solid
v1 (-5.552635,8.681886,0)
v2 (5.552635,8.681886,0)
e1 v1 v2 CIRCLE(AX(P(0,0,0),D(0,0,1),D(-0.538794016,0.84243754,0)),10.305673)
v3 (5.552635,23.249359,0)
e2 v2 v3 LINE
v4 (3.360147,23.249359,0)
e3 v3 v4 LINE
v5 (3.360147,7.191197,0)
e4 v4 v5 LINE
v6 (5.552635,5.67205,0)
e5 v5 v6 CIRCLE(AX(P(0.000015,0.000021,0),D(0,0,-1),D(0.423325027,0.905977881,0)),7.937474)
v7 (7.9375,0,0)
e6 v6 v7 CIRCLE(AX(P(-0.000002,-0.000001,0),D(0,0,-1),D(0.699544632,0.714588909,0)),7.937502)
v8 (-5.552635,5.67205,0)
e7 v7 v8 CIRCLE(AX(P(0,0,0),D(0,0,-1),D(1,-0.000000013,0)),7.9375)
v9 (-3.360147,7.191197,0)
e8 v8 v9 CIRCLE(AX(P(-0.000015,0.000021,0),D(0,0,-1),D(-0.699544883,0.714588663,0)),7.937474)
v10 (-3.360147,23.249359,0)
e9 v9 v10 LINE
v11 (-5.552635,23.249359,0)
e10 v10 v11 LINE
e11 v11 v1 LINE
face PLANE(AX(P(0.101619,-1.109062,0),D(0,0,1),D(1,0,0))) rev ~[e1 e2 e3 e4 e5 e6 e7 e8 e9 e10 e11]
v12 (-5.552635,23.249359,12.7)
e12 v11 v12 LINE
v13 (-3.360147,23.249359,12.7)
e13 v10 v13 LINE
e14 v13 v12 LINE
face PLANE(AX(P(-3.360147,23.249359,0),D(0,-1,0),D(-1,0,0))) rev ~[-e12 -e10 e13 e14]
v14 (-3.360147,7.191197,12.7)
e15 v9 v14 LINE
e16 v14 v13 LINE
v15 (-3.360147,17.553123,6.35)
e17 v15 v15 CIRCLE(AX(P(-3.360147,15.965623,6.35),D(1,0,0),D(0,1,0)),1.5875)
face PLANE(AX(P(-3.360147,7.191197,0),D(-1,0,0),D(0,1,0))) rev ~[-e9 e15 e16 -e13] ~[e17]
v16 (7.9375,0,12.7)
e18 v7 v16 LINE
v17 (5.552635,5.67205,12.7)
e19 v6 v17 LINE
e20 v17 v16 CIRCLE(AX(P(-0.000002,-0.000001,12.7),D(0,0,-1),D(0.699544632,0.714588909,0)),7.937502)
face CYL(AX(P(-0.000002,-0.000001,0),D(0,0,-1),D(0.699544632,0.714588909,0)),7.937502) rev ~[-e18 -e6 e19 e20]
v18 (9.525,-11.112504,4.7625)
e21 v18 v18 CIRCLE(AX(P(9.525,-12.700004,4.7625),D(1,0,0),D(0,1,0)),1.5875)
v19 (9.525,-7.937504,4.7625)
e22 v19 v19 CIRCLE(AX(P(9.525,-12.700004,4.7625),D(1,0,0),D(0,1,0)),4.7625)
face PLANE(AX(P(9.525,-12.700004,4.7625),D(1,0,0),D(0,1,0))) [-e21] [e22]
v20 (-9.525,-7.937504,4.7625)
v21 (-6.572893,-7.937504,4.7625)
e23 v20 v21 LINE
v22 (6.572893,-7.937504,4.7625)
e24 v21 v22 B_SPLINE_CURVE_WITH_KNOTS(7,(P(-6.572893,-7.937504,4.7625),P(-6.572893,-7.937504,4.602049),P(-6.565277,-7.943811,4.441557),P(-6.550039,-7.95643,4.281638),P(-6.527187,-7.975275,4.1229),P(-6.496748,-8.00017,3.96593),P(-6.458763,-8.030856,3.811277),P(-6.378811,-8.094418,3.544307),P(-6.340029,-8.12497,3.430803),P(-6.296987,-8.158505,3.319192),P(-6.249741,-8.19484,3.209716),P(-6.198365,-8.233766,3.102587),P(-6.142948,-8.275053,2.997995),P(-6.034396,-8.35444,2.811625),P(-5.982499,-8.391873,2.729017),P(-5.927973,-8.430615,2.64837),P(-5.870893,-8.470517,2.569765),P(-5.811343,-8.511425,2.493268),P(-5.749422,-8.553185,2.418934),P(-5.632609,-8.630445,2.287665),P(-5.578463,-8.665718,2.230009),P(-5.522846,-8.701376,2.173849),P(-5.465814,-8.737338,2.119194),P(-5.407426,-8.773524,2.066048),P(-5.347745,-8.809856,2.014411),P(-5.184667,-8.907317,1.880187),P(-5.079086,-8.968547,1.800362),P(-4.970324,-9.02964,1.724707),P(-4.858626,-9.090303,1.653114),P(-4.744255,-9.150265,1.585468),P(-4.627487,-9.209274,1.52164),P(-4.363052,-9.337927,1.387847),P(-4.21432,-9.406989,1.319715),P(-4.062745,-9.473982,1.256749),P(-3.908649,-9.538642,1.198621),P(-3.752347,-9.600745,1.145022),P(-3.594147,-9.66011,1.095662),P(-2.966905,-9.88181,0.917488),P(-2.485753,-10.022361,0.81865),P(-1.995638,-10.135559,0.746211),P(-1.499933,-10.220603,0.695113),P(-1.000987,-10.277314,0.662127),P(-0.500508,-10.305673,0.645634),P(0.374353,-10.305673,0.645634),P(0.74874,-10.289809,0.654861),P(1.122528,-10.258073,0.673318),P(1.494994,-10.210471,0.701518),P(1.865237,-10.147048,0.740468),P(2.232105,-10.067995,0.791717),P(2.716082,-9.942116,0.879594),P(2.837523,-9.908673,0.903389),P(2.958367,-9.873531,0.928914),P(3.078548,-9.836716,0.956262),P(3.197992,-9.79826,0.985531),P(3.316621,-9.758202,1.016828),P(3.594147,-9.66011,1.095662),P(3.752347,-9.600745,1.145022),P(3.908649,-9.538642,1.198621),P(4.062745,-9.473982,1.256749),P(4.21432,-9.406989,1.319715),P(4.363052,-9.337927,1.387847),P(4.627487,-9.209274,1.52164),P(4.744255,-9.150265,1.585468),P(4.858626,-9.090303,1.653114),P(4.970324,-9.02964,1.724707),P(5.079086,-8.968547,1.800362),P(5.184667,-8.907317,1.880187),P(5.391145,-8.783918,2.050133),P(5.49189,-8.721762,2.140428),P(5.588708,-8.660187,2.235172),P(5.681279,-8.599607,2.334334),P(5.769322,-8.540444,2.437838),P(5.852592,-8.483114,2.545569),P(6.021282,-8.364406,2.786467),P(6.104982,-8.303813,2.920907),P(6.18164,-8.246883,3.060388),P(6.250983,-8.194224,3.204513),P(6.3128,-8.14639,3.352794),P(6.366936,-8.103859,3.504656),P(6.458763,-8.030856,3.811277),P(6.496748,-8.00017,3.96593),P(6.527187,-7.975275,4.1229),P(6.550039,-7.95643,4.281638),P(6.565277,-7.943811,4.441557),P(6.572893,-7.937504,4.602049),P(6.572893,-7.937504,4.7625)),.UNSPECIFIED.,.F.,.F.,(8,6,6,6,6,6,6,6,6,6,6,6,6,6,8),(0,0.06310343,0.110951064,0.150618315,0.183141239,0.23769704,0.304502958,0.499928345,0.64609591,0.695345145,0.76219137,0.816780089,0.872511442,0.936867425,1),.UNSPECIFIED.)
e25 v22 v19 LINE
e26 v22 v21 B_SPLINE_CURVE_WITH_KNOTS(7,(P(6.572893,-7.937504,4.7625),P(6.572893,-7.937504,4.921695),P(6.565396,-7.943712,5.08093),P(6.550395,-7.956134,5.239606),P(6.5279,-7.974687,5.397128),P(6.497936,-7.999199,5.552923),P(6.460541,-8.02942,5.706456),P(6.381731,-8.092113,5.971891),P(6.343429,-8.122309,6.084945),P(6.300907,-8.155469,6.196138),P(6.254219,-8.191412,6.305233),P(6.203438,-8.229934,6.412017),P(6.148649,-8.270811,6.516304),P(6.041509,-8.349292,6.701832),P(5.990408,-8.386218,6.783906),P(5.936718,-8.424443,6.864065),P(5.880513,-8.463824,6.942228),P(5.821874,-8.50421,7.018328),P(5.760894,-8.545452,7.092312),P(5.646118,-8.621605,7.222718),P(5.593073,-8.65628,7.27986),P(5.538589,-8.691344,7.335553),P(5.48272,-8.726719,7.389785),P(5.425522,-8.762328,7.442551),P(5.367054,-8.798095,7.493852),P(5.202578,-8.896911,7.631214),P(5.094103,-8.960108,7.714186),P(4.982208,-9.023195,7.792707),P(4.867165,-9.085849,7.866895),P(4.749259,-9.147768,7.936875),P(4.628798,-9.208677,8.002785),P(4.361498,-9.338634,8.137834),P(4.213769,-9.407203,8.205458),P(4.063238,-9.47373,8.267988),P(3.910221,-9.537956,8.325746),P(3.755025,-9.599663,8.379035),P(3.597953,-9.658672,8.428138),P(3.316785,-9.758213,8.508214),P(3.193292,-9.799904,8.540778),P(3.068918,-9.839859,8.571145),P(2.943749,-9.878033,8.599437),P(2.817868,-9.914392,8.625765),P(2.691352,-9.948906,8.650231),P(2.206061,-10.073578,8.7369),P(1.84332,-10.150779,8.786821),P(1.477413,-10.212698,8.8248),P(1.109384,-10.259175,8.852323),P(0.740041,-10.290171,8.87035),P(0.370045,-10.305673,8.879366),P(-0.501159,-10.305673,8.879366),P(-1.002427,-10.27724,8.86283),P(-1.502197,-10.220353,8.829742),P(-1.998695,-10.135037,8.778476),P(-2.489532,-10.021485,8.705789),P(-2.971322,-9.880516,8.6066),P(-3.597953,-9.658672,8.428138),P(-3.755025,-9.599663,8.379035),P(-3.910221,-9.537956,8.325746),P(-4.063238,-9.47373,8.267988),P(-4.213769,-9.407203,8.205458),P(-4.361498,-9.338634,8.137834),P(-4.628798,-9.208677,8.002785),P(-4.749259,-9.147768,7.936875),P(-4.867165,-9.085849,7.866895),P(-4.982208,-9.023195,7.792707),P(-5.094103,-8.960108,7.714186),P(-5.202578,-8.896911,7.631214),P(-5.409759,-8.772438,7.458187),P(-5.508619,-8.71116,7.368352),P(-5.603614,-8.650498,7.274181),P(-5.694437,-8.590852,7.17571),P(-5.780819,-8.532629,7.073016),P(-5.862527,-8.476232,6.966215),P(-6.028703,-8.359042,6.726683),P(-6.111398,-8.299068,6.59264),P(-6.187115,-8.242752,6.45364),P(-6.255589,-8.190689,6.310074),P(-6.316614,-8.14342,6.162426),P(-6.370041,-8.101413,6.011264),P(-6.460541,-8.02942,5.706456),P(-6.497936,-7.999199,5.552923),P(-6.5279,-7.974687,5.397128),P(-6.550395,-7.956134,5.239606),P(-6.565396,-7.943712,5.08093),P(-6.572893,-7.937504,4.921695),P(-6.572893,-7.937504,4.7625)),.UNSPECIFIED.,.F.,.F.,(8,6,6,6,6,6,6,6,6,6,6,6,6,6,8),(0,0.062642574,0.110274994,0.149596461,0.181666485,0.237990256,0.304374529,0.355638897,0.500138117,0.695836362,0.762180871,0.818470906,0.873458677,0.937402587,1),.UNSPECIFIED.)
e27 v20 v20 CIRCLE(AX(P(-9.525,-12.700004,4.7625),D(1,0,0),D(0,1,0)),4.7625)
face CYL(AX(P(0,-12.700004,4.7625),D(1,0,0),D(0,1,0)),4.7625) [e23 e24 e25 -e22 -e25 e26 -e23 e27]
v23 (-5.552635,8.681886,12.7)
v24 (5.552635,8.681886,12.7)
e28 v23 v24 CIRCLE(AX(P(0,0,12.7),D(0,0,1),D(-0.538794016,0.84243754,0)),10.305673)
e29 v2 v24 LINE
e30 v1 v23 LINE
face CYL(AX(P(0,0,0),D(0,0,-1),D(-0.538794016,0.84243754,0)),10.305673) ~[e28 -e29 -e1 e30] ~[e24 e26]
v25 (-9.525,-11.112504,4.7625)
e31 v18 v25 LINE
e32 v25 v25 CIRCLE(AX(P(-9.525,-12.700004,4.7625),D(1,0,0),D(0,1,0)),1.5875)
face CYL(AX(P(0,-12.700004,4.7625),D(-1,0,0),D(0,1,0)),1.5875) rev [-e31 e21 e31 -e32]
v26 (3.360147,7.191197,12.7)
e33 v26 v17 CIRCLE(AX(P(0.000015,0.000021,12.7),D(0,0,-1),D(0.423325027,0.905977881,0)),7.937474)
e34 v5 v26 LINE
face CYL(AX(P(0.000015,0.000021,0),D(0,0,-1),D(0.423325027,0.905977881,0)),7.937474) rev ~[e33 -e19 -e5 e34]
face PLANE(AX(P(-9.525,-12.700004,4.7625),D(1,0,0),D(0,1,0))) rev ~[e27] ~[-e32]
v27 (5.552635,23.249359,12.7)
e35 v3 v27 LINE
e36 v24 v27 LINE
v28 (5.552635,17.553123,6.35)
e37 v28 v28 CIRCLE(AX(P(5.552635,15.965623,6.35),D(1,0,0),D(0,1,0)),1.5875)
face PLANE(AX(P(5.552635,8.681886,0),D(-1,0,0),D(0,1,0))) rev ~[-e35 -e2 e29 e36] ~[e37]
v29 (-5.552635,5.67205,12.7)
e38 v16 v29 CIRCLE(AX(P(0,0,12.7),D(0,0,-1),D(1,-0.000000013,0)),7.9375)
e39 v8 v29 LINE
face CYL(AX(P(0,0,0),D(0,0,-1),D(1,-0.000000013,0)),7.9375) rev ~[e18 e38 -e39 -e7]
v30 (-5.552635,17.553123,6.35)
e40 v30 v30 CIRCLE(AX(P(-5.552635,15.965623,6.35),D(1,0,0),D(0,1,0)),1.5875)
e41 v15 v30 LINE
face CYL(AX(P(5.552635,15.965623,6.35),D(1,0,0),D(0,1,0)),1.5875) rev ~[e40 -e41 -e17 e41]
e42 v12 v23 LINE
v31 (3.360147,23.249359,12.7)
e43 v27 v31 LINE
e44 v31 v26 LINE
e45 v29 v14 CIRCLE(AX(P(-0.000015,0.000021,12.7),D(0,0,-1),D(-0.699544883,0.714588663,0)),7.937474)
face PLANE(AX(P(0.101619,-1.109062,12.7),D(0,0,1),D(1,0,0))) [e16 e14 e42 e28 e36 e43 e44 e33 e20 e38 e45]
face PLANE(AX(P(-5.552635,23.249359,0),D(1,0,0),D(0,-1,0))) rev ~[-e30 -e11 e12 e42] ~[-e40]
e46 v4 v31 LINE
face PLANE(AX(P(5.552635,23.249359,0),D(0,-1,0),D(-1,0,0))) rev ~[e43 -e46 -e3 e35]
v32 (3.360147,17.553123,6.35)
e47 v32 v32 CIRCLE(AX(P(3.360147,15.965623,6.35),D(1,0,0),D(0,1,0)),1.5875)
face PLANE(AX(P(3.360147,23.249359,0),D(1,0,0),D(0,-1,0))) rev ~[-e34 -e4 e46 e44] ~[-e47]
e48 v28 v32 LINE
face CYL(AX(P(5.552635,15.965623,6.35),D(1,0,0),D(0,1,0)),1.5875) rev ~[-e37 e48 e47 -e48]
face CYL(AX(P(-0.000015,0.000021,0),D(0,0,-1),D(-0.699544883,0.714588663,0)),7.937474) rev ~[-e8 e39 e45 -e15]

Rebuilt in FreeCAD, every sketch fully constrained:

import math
import FreeCAD as App
import Part
import Sketcher

V = App.Vector
Q = App.Units.Quantity

doc = App.newDocument("Part")
body = doc.addObject("PartDesign::Body", "Body")

# Sketch on XY plane
sketch1 = body.newObject("Sketcher::SketchObject", "Sketch")
sketch1.AttachmentSupport = (doc.getObject("XY_Plane"), [""])
sketch1.MapMode = "FlatFace"
sketch1.addGeometry(Part.ArcOfCircle(Part.Circle(V(0, 0, 0), V(0, 0, 1), 10.3), math.radians(123), math.radians(417)), False)
sketch1.addGeometry(Part.LineSegment(V(5.6, 8.7, 0), V(5.6, 23.2, 0)), False)
sketch1.addGeometry(Part.LineSegment(V(5.6, 23.2, 0), V(3.4, 23.2, 0)), False)
sketch1.addGeometry(Part.LineSegment(V(3.4, 23.2, 0), V(3.4, 7.2, 0)), False)
sketch1.addGeometry(Part.ArcOfCircle(Part.Circle(V(0, 0, 0), V(0, 0, 1), 7.9), math.radians(45.61), math.radians(64.96)), False)
sketch1.addGeometry(Part.ArcOfCircle(Part.Circle(V(0, 0, 0), V(0, 0, 1), 7.9), math.radians(0), math.radians(46)), False)
sketch1.addGeometry(Part.ArcOfCircle(Part.Circle(V(0, 0, 0), V(0, 0, 1), 7.9), math.radians(134), math.radians(360)), False)
sketch1.addGeometry(Part.ArcOfCircle(Part.Circle(V(0, 0, 0), V(0, 0, 1), 7.9), math.radians(115.04), math.radians(134.39)), False)
sketch1.addGeometry(Part.LineSegment(V(-3.4, 7.2, 0), V(-3.4, 23.2, 0)), False)
sketch1.addGeometry(Part.LineSegment(V(-3.4, 23.2, 0), V(-5.6, 23.2, 0)), False)
sketch1.addGeometry(Part.LineSegment(V(-5.6, 23.2, 0), V(-5.6, 8.7, 0)), False)
sketch1.addConstraint(Sketcher.Constraint("Coincident", 0, 2, 1, 1))
sketch1.addConstraint(Sketcher.Constraint("Coincident", 1, 2, 2, 1))
sketch1.addConstraint(Sketcher.Constraint("Coincident", 2, 2, 3, 1))
sketch1.addConstraint(Sketcher.Constraint("Coincident", 3, 2, 4, 2))
sketch1.addConstraint(Sketcher.Constraint("Tangent", 4, 1, 5, 2))
sketch1.addConstraint(Sketcher.Constraint("Tangent", 5, 1, 6, 2))
sketch1.addConstraint(Sketcher.Constraint("Tangent", 6, 1, 7, 2))
sketch1.addConstraint(Sketcher.Constraint("Coincident", 7, 1, 8, 1))
sketch1.addConstraint(Sketcher.Constraint("Coincident", 8, 2, 9, 1))
sketch1.addConstraint(Sketcher.Constraint("Coincident", 9, 2, 10, 1))
sketch1.addConstraint(Sketcher.Constraint("Coincident", 10, 2, 0, 1))
sketch1.addConstraint(Sketcher.Constraint("Vertical", 1))
sketch1.addConstraint(Sketcher.Constraint("Horizontal", 2))
sketch1.addConstraint(Sketcher.Constraint("Vertical", 3))
sketch1.addConstraint(Sketcher.Constraint("Vertical", 8))
sketch1.addConstraint(Sketcher.Constraint("Horizontal", 9))
sketch1.addConstraint(Sketcher.Constraint("Vertical", 10))
sketch1.addConstraint(Sketcher.Constraint("Coincident", 0, 3, -1, 1))
sketch1.addConstraint(Sketcher.Constraint("Coincident", 5, 3, -1, 1))
sketch1.addConstraint(Sketcher.Constraint("Equal", 5, 6))
sketch1.addConstraint(Sketcher.Constraint("Equal", 4, 7))
sketch1.addConstraint(Sketcher.Constraint("Symmetric", 2, 2, 8, 2, -2))
sketch1.addConstraint(Sketcher.Constraint("PointOnObject", 5, 1, -1))
sketch1.addConstraint(Sketcher.Constraint("Horizontal", 4, 1, 6, 1))
sketch1.addConstraint(Sketcher.Constraint("Horizontal", 0, 2, 10, 2))
sketch1.addConstraint(Sketcher.Constraint("Vertical", 1, 2, 4, 1))
sketch1.addConstraint(Sketcher.Constraint("Radius", 5, Q("0.3125001 in")))
sketch1.addConstraint(Sketcher.Constraint("Radius", 0, Q("10.305673 mm")))
sketch1.addConstraint(Sketcher.Constraint("Radius", 4, Q("7.937474 mm")))
sketch1.addConstraint(Sketcher.Constraint("DistanceX", 2, 2, 2, 1, Q("2.192488 mm")))
sketch1.addConstraint(Sketcher.Constraint("DistanceY", 3, 2, 3, 1, Q("16.058162 mm")))
sketch1.addConstraint(Sketcher.Constraint("DistanceY", 1, 1, 1, 2, Q("14.567473 mm")))
pad1 = body.newObject("PartDesign::Pad", "Pad")
pad1.Profile = sketch1
pad1.Length = Q("0.5 in")

# Sketch on YZ plane
sketch2 = body.newObject("Sketcher::SketchObject", "Sketch001")
sketch2.AttachmentSupport = (doc.getObject("YZ_Plane"), [""])
sketch2.MapMode = "FlatFace"
sketch2.addGeometry(Part.Circle(V(-12.7, 4.8, 0), V(0, 0, 1), 4.8), False)
sketch2.addGeometry(Part.Circle(V(-12.7, 4.8, 0), V(0, 0, 1), 1.6), False)
sketch2.addConstraint(Sketcher.Constraint("Coincident", 1, 3, 0, 3))
sketch2.addConstraint(Sketcher.Constraint("Diameter", 0, Q("0.375 in")))
sketch2.addConstraint(Sketcher.Constraint("Diameter", 1, Q("0.125 in")))
sketch2.addConstraint(Sketcher.Constraint("DistanceX", 0, 3, -1, 1, Q("0.5000002 in")))
sketch2.addConstraint(Sketcher.Constraint("DistanceY", -1, 1, 0, 3, Q("0.1875 in")))
pad2 = body.newObject("PartDesign::Pad", "Pad001")
pad2.Profile = sketch2
pad2.Length = Q("0.75 in")
pad2.Midplane = True

# Sketch on YZ plane
sketch3 = body.newObject("Sketcher::SketchObject", "Sketch002")
sketch3.AttachmentSupport = (doc.getObject("YZ_Plane"), [""])
sketch3.MapMode = "FlatFace"
sketch3.AttachmentOffset = App.Placement(V(0, 0, 5.552635), App.Rotation())
sketch3.addGeometry(Part.Circle(V(16, 6.3, 0), V(0, 0, 1), 1.6), False)
sketch3.addConstraint(Sketcher.Constraint("Diameter", 0, Q("0.125 in")))
sketch3.addConstraint(Sketcher.Constraint("DistanceY", -1, 1, 0, 3, Q("0.25 in")))
sketch3.addConstraint(Sketcher.Constraint("DistanceX", -1, 1, 0, 3, Q("15.965623 mm")))
pocket1 = body.newObject("PartDesign::Pocket", "Pocket")
pocket1.Profile = sketch3
pocket1.Type = "ThroughAll"
body2 = doc.addObject("PartDesign::Body", "Body001")
doc.recompute()

body2.BaseFeature = body
doc.recompute()
body.Visibility = False

doc.recompute()
